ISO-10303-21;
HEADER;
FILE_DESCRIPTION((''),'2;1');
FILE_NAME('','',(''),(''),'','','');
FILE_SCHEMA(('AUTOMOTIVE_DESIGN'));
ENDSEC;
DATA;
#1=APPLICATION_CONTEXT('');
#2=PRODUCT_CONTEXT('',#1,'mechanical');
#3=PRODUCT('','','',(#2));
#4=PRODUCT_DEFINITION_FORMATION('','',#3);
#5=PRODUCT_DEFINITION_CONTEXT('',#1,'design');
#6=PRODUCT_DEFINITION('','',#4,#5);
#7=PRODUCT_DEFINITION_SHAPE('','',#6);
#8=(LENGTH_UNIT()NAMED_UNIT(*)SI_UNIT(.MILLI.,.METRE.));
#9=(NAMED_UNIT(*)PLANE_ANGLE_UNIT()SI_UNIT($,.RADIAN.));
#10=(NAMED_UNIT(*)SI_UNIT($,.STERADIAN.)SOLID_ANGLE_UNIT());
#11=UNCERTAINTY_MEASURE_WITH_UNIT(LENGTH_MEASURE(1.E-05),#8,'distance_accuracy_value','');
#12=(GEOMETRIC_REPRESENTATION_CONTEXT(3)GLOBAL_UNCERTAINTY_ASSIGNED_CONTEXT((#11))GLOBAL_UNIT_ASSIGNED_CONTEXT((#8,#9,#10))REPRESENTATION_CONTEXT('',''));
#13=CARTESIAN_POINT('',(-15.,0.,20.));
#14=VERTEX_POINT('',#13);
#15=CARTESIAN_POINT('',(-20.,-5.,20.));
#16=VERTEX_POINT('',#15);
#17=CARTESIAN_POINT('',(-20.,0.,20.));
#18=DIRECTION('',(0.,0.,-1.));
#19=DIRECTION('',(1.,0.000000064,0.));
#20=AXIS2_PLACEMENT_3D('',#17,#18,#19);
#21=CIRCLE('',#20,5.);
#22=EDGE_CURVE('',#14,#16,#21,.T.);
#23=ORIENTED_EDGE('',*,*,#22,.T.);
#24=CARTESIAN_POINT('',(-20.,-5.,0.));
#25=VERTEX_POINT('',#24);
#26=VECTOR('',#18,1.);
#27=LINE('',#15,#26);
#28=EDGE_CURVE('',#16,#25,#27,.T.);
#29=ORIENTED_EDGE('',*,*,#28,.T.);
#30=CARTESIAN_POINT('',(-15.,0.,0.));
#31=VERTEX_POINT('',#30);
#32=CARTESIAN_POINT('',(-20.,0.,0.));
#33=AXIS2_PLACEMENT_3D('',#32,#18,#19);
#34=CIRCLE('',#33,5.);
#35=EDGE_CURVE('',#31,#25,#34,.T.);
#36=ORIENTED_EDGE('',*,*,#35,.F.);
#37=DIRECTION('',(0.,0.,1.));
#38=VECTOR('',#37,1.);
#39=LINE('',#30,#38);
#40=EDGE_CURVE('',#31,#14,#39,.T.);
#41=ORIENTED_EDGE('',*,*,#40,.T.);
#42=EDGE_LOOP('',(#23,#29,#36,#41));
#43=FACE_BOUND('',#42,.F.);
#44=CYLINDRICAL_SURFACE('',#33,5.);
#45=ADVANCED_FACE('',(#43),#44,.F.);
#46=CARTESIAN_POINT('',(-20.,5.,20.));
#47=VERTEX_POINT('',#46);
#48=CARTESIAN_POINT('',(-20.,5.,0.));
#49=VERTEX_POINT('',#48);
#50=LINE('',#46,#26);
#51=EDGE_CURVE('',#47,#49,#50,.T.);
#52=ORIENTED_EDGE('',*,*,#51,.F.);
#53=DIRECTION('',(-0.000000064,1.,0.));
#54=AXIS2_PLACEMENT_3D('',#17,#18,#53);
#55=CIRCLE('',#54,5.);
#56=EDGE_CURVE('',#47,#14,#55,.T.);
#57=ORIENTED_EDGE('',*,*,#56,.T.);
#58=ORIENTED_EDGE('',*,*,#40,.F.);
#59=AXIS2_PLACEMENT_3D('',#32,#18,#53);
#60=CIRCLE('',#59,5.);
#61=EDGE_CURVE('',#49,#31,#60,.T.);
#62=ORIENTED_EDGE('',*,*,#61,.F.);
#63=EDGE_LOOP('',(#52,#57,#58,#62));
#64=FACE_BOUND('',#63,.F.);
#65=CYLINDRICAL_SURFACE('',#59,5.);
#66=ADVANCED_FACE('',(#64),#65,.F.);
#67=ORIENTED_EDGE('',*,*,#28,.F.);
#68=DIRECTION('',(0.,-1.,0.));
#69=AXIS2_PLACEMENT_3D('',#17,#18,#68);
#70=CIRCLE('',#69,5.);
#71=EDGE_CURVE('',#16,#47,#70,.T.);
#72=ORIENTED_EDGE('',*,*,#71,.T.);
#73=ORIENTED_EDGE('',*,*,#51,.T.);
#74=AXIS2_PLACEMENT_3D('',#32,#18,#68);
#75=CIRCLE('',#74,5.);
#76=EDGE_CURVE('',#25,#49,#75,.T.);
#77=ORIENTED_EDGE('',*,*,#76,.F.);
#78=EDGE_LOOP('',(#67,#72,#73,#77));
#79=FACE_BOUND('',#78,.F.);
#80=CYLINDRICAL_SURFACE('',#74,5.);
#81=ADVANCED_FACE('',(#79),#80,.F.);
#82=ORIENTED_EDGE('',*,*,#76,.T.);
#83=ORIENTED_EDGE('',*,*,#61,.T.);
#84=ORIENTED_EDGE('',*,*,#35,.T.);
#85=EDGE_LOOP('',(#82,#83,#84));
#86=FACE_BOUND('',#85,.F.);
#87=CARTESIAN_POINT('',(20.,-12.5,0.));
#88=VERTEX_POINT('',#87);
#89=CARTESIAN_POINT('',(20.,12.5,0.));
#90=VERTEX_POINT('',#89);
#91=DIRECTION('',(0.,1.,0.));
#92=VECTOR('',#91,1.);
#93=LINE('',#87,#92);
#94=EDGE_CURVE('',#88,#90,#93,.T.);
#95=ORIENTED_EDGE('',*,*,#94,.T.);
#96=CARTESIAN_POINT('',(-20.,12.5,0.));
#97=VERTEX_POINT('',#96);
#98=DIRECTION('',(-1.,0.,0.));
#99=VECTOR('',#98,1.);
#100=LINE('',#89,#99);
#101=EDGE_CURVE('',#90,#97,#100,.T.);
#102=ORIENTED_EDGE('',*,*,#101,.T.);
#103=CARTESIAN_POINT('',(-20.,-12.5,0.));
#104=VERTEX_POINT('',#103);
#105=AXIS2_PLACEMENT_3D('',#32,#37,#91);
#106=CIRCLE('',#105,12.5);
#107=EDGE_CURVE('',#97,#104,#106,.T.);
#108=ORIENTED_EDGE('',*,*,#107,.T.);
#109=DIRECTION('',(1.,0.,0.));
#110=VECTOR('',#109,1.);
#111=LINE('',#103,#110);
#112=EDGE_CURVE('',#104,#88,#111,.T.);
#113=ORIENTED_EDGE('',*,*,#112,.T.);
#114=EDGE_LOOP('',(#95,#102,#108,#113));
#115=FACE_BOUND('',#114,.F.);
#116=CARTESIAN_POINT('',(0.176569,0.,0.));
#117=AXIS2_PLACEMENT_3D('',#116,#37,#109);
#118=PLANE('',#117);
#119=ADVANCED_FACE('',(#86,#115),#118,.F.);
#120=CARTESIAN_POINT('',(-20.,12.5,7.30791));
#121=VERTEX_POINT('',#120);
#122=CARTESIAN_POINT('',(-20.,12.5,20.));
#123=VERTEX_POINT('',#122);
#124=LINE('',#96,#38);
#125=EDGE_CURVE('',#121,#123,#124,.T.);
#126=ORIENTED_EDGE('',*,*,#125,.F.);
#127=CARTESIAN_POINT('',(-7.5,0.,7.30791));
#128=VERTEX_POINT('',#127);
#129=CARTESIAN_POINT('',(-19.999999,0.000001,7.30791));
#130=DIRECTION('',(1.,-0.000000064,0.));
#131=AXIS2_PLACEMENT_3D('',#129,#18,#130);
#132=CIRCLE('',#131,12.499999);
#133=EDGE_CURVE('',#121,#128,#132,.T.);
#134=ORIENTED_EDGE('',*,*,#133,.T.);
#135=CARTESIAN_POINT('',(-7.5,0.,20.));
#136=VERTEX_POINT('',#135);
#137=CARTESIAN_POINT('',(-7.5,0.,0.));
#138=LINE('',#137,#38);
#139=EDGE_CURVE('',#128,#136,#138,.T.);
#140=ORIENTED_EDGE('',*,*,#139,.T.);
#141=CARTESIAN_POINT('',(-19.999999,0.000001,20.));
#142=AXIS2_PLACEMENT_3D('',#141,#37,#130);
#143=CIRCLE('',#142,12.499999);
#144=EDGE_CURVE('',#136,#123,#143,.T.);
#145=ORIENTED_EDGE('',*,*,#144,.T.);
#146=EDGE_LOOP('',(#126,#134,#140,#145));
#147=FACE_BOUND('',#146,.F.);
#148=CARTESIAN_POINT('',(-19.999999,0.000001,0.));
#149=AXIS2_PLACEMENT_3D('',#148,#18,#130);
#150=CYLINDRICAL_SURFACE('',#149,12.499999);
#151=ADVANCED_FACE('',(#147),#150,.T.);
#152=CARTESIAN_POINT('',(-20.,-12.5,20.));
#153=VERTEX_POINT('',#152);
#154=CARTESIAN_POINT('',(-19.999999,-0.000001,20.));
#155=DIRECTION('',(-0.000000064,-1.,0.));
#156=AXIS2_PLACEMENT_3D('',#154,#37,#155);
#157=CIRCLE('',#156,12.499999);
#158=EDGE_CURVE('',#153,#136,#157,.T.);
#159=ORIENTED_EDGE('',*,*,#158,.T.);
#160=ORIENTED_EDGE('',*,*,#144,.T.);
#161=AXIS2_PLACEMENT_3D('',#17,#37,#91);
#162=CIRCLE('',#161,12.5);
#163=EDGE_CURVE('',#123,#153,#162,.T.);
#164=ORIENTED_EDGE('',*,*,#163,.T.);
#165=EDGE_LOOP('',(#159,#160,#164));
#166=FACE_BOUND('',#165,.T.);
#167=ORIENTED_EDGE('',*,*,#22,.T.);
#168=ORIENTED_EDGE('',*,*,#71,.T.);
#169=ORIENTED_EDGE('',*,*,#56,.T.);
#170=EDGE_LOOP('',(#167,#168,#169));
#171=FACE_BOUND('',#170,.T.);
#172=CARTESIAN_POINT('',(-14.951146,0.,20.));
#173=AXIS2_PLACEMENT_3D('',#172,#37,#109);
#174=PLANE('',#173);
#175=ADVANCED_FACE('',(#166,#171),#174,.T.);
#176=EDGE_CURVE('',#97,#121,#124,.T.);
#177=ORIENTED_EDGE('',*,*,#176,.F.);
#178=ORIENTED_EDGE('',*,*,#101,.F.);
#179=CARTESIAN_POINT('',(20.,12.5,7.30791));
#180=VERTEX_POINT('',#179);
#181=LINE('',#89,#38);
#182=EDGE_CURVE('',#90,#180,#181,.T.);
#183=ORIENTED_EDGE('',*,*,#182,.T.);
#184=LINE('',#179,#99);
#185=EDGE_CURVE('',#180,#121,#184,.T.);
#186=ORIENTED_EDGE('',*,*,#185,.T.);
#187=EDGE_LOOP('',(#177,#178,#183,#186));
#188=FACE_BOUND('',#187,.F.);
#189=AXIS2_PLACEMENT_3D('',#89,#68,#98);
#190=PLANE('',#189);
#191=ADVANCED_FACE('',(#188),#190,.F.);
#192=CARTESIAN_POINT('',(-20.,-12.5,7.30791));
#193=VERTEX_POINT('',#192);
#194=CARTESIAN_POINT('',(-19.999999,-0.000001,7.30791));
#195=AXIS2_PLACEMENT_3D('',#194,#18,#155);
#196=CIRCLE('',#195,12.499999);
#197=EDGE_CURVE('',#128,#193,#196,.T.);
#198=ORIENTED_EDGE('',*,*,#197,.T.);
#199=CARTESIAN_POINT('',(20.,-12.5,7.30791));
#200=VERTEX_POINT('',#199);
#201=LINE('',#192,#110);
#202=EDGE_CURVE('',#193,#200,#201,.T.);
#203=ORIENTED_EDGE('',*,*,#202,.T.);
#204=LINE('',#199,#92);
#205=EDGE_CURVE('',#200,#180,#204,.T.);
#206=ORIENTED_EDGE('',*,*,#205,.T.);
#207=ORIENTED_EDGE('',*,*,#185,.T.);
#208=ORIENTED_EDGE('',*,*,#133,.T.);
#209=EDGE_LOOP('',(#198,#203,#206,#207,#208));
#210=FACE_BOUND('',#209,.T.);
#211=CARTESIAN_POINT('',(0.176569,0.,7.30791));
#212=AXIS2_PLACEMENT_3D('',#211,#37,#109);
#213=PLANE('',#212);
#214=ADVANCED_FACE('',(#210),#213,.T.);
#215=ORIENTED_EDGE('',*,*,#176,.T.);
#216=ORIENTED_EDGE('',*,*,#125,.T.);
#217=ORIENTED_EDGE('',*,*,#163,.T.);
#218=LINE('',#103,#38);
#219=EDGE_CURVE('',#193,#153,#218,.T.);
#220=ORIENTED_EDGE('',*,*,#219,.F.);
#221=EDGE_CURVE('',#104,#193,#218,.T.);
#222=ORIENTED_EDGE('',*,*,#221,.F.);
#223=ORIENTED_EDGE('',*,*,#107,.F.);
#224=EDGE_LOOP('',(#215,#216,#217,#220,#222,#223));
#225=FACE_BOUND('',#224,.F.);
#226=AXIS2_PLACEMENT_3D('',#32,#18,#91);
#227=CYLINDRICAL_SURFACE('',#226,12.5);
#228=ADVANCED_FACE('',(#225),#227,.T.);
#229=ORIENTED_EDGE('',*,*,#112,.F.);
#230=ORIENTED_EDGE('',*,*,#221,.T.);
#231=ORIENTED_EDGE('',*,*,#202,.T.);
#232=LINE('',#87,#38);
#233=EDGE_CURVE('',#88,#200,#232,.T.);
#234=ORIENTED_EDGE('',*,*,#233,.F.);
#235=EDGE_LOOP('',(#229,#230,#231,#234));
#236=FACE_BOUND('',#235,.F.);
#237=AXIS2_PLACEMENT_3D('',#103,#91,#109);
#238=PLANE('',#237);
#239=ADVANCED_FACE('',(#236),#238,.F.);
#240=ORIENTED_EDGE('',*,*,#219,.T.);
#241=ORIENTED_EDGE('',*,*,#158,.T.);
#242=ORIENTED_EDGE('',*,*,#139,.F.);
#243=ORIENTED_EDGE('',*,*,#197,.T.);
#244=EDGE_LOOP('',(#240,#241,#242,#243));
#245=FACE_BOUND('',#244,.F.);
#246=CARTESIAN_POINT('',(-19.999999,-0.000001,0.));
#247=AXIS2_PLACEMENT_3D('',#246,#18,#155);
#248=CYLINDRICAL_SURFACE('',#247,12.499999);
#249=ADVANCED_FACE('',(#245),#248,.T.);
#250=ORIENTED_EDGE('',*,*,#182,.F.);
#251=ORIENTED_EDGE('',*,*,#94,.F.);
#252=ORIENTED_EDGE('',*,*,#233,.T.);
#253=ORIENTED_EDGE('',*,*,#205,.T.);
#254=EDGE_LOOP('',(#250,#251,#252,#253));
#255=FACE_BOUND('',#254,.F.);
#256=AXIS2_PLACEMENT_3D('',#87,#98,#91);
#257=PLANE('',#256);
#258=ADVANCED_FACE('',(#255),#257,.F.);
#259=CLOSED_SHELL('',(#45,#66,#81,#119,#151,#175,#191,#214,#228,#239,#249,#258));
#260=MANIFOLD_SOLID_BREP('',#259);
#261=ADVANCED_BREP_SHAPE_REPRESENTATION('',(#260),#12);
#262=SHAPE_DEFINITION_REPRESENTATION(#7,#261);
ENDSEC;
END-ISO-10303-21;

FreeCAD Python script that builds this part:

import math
import FreeCAD as App
import Part
import Sketcher

doc = App.newDocument("Part")
body = doc.addObject("PartDesign::Body", "Body")

sketch1 = body.newObject("Sketcher::SketchObject", "Sketch")
sketch1.AttachmentSupport = (doc.getObject("XY_Plane"), [""])
sketch1.MapMode = "FlatFace"
sketch1.addGeometry([
    Part.LineSegment(App.Vector(-20, -12.5, 0), App.Vector(20, -12.5, 0)),
    Part.LineSegment(App.Vector(20, -12.5, 0), App.Vector(20, 12.5, 0)),
    Part.LineSegment(App.Vector(20, 12.5, 0), App.Vector(-20, 12.5, 0)),
    Part.ArcOfCircle(Part.Circle(App.Vector(-20, 0, 0), App.Vector(0, 0, 1), 12.5), math.radians(90), math.radians(270)),
    Part.ArcOfCircle(Part.Circle(App.Vector(-20, 0, 0), App.Vector(0, 0, 1), 5), math.radians(-0.000004), math.radians(90.000004)),
    Part.ArcOfCircle(Part.Circle(App.Vector(-20, 0, 0), App.Vector(0, 0, 1), 5), math.radians(-90.000004), math.radians(0.000004)),
    Part.ArcOfCircle(Part.Circle(App.Vector(-20, 0, 0), App.Vector(0, 0, 1), 5), math.radians(90), math.radians(270)),
], False)
sketch1.addConstraint([
    Sketcher.Constraint("Coincident", 0, 2, 1, 1),
    Sketcher.Constraint("Coincident", 1, 2, 2, 1),
    Sketcher.Constraint("Tangent", 2, 2, 3, 1),
    Sketcher.Constraint("Tangent", 3, 2, 0, 1),
    Sketcher.Constraint("Tangent", 4, 1, 5, 2),
    Sketcher.Constraint("Tangent", 5, 1, 6, 2),
    Sketcher.Constraint("Tangent", 6, 1, 4, 2),
    Sketcher.Constraint("Horizontal", 0),
    Sketcher.Constraint("Vertical", 1),
    Sketcher.Constraint("Horizontal", 2),
    Sketcher.Constraint("Coincident", 4, 3, 3, 3),
    Sketcher.Constraint("Symmetric", 0, 2, 2, 2, -1, 1),
    Sketcher.Constraint("PointOnObject", 4, 1, -1),
    Sketcher.Constraint("Vertical", 3, 2, 5, 1),
    Sketcher.Constraint("Vertical", 5, 1, 6, 1),
    Sketcher.Constraint("Radius", 4, 5.0),
    Sketcher.Constraint("Radius", 3, 12.5),
    Sketcher.Constraint("DistanceX", 0, 1, 0, 2, 40.0),
])
pad1 = body.newObject("PartDesign::Pad", "Pad")
pad1.Profile = sketch1
pad1.Length = 7.30791

sketch2 = body.newObject("Sketcher::SketchObject", "Sketch001")
sketch2.AttachmentSupport = (doc.getObject("XY_Plane"), [""])
sketch2.MapMode = "FlatFace"
sketch2.addGeometry([
    Part.ArcOfCircle(Part.Circle(App.Vector(-19.999999, -0.000001, 0), App.Vector(0, 0, 1), 12.499999), math.radians(-90.000004), math.radians(0.000004)),
    Part.ArcOfCircle(Part.Circle(App.Vector(-19.999999, 0.000001, 0), App.Vector(0, 0, 1), 12.499999), math.radians(-0.000004), math.radians(90.000004)),
    Part.ArcOfCircle(Part.Circle(App.Vector(-20, 0, 0), App.Vector(0, 0, 1), 12.5), math.radians(90), math.radians(270)),
    Part.ArcOfCircle(Part.Circle(App.Vector(-20, 0, 0), App.Vector(0, 0, 1), 5), math.radians(-0.000004), math.radians(90.000004)),
    Part.ArcOfCircle(Part.Circle(App.Vector(-20, 0, 0), App.Vector(0, 0, 1), 5), math.radians(-90.000004), math.radians(0.000004)),
    Part.ArcOfCircle(Part.Circle(App.Vector(-20, 0, 0), App.Vector(0, 0, 1), 5), math.radians(90), math.radians(270)),
], False)
sketch2.addConstraint([
    Sketcher.Constraint("Tangent", 0, 2, 1, 1),
    Sketcher.Constraint("Tangent", 1, 2, 2, 1),
    Sketcher.Constraint("Tangent", 2, 2, 0, 1),
    Sketcher.Constraint("Tangent", 3, 1, 4, 2),
    Sketcher.Constraint("Tangent", 4, 1, 5, 2),
    Sketcher.Constraint("Tangent", 5, 1, 3, 2),
    Sketcher.Constraint("Coincident", 3, 3, 0, 3),
    Sketcher.Constraint("Symmetric", 1, 2, 2, 2, -1),
    Sketcher.Constraint("PointOnObject", 0, 2, -1),
    Sketcher.Constraint("PointOnObject", 3, 1, -1),
    Sketcher.Constraint("Vertical", 5, 3, 1, 2),
    Sketcher.Constraint("Vertical", 2, 2, 4, 1),
    Sketcher.Constraint("Vertical", 4, 1, 5, 1),
    Sketcher.Constraint("Radius", 3, 5.0),
    Sketcher.Constraint("Radius", 0, 12.499999),
    Sketcher.Constraint("DistanceX", 0, 3, -1, 1, 19.999999),
])
pad2 = body.newObject("PartDesign::Pad", "Pad001")
pad2.Profile = sketch2
pad2.Length = 20

doc.recompute()
